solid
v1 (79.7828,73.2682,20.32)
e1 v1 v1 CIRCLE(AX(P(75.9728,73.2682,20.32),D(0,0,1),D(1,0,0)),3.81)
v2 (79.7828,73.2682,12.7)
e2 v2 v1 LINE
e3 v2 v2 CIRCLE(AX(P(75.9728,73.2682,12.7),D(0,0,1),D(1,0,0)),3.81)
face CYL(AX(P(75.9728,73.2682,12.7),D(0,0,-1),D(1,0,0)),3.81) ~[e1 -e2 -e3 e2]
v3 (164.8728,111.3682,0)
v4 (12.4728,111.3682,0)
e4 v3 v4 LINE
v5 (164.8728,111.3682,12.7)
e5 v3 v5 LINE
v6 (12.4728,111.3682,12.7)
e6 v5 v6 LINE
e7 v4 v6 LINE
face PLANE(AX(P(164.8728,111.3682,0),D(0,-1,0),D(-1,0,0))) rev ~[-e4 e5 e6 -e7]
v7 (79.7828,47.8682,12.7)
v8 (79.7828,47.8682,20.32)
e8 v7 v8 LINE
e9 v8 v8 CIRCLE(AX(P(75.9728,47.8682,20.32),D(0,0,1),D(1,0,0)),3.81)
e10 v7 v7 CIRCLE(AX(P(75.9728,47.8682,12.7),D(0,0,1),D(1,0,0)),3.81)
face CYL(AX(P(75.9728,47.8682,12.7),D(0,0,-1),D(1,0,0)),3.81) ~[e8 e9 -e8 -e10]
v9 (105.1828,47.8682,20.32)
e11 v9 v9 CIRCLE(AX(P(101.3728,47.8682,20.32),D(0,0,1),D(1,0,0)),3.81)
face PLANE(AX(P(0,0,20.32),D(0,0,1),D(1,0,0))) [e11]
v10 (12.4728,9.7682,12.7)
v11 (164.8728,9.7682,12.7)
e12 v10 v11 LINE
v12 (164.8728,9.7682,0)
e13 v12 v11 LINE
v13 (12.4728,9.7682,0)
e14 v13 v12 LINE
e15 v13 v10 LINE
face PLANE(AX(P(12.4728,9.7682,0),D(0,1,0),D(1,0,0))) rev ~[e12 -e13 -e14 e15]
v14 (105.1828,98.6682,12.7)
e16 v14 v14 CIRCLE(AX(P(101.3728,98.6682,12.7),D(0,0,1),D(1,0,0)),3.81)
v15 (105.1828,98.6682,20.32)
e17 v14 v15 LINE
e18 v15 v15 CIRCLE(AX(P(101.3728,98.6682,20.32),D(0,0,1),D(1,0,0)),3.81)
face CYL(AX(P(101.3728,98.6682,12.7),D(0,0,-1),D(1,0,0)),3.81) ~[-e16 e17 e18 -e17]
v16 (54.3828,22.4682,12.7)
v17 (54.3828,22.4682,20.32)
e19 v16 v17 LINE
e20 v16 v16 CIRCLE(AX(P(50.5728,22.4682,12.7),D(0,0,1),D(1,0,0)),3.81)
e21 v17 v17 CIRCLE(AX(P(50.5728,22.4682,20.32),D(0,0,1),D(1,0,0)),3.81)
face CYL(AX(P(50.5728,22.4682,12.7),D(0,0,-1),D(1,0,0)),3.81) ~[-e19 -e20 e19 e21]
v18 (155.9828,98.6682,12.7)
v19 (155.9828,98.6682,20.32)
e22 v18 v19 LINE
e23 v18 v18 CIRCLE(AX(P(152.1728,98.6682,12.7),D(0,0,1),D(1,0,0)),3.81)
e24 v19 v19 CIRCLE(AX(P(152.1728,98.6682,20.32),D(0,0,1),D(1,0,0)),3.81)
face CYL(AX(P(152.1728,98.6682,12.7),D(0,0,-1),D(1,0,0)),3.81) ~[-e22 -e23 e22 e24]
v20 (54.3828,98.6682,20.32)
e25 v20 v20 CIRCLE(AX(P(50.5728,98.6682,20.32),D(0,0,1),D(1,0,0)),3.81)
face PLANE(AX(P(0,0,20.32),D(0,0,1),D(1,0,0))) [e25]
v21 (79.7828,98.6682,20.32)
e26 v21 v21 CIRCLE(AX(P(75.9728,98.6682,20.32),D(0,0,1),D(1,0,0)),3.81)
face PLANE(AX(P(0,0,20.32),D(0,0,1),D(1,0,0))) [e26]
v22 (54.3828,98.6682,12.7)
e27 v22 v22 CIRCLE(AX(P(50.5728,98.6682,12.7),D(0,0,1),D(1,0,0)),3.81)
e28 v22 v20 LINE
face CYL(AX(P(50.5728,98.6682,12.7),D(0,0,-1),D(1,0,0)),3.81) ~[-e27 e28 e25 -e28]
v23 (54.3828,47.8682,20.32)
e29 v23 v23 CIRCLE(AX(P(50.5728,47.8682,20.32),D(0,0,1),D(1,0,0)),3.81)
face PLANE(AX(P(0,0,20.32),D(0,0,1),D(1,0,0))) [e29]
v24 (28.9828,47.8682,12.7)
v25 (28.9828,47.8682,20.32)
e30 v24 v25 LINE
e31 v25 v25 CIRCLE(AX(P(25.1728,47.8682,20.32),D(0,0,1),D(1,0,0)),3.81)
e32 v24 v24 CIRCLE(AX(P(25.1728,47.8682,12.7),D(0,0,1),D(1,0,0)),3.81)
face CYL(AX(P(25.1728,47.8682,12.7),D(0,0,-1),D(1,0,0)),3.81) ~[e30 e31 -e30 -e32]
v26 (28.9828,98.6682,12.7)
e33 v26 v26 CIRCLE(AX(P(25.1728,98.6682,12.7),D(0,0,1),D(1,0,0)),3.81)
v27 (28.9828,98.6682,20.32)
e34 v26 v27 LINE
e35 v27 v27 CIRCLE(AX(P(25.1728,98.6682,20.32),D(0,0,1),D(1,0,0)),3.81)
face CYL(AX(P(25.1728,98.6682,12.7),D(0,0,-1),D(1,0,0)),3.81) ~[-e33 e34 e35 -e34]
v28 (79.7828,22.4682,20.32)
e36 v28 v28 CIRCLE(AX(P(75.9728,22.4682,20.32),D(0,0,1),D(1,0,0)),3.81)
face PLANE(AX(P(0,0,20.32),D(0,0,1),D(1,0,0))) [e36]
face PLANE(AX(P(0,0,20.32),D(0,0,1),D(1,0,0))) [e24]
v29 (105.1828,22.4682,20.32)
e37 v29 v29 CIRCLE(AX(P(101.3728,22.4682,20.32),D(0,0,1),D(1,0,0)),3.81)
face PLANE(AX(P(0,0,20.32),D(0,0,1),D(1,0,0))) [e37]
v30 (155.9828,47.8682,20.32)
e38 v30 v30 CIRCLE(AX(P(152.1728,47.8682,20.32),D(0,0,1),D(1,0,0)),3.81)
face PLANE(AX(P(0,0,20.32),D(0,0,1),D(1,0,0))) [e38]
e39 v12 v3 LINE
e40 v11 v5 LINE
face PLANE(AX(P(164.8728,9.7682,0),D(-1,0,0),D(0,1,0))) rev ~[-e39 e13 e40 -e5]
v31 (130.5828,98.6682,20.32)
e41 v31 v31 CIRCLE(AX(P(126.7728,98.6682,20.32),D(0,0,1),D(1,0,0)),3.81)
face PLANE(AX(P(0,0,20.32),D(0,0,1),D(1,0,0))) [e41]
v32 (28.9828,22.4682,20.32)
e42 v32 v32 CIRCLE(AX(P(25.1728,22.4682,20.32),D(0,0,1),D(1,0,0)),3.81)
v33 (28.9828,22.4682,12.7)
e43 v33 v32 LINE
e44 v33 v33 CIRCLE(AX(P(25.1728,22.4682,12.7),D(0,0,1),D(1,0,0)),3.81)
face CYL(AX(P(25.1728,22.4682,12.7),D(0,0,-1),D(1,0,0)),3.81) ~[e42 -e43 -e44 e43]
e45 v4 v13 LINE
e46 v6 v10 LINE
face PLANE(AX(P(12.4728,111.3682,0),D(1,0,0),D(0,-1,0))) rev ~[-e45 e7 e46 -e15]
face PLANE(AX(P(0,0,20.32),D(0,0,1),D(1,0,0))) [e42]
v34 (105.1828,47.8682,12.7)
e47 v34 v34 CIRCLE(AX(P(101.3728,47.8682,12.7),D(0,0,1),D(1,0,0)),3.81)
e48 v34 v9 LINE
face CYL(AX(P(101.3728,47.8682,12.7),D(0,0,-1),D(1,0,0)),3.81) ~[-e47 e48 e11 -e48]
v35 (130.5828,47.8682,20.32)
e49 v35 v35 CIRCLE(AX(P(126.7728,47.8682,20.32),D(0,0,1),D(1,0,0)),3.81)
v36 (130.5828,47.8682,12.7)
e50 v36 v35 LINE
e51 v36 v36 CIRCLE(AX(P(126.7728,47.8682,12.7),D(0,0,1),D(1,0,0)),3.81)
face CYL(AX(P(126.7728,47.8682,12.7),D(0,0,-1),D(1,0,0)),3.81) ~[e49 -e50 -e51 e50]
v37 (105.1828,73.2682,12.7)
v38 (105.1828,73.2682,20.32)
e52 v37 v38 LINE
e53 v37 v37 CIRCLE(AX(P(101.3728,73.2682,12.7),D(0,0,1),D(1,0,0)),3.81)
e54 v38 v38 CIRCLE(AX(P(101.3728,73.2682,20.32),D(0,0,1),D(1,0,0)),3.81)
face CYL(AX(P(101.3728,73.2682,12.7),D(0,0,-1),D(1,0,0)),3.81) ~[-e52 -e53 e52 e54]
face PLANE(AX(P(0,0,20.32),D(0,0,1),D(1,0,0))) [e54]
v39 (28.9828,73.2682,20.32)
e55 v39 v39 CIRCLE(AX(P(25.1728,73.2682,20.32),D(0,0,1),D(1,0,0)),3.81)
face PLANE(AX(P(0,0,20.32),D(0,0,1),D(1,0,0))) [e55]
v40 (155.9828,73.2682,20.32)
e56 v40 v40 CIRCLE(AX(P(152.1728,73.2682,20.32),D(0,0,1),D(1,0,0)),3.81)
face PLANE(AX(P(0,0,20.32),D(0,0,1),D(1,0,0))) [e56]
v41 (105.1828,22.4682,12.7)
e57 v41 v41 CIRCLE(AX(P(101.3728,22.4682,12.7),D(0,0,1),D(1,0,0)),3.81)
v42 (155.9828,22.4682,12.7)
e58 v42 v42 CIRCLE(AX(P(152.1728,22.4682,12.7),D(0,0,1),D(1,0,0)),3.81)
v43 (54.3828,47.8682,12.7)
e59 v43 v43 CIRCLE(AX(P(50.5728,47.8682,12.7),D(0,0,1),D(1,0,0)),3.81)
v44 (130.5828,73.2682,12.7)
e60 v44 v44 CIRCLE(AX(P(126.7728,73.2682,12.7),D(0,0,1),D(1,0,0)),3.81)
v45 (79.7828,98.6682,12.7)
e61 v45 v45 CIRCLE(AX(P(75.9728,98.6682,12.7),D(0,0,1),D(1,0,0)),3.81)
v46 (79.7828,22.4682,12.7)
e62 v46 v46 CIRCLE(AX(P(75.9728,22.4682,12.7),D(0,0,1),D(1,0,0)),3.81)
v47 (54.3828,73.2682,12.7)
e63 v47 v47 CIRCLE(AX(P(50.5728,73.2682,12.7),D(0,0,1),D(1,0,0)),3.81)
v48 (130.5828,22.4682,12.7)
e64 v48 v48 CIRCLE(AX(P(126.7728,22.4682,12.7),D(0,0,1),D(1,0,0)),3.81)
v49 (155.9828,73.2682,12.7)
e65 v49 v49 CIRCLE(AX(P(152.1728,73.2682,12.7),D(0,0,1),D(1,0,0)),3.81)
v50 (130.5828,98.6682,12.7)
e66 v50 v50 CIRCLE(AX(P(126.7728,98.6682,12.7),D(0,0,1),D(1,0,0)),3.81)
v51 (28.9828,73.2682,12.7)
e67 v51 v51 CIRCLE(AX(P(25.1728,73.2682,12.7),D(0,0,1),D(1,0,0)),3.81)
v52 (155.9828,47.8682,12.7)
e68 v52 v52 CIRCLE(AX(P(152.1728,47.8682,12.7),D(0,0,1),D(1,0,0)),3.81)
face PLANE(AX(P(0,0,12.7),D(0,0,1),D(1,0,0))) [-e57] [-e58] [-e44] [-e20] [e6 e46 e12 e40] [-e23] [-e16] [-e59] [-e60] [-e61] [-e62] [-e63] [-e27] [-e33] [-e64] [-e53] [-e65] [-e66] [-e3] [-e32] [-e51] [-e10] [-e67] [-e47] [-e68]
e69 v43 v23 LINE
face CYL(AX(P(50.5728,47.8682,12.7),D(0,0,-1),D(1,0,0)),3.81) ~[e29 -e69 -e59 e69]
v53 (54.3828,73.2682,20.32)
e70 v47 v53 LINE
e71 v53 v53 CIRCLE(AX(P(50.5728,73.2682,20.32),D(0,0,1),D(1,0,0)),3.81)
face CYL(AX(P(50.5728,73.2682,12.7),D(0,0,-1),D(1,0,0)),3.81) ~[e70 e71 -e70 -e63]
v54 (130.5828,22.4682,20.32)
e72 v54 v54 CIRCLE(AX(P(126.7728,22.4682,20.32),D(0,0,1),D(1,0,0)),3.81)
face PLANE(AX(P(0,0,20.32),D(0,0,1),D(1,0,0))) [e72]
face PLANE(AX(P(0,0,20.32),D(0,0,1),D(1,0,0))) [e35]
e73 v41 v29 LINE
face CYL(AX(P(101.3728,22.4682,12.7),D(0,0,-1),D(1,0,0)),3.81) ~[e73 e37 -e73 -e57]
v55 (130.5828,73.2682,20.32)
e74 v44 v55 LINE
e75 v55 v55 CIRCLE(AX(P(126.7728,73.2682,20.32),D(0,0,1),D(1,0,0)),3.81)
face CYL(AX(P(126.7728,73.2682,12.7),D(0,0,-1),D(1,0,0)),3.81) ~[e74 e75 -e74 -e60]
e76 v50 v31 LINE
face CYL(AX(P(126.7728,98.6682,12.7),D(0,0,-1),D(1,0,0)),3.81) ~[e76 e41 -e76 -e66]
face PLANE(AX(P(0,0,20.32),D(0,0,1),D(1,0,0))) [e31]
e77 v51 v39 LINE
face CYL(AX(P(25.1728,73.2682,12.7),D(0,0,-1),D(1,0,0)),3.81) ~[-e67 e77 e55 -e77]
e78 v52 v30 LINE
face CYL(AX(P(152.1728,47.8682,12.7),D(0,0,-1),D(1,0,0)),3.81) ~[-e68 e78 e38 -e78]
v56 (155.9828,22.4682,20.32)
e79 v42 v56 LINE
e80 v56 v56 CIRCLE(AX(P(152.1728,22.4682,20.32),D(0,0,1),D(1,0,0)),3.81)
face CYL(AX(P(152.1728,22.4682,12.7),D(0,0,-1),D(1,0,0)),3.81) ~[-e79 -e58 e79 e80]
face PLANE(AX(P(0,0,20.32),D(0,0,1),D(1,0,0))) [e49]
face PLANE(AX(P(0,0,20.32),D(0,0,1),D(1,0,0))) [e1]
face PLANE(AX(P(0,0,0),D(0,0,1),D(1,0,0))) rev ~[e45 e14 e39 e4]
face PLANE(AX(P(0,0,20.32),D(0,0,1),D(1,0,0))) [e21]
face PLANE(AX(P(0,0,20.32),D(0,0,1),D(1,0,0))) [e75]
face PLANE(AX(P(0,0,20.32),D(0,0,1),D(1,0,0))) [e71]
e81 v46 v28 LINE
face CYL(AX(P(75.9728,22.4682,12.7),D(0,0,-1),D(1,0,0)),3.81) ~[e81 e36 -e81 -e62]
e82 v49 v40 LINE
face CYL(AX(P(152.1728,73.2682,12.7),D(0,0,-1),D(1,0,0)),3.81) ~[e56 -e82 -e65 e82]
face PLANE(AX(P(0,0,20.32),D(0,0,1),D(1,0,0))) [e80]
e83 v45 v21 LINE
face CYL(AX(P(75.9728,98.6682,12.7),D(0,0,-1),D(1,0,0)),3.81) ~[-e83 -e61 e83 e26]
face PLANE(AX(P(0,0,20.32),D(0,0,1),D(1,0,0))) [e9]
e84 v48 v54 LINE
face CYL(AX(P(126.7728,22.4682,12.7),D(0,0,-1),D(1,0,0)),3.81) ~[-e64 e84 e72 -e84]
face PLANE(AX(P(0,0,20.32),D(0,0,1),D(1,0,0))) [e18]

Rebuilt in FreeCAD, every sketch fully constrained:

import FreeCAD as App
import Part
import Sketcher
Q = App.Units.Quantity

doc = App.newDocument("Part")
body = doc.addObject("PartDesign::Body", "Body")

# Sketch on XY plane
sketch1 = doc.addObject("Sketcher::SketchObject", "Sketch")
body.addObject(sketch1)
sketch1.AttachmentSupport = (doc.XY_Plane, [""])
sketch1.MapMode = "FlatFace"
sketch1.addGeometry([
    Part.LineSegment(App.Vector(12, 111, 0), App.Vector(12, 10, 0)),
    Part.LineSegment(App.Vector(12, 10, 0), App.Vector(165, 10, 0)),
    Part.LineSegment(App.Vector(165, 10, 0), App.Vector(165, 111, 0)),
    Part.LineSegment(App.Vector(165, 111, 0), App.Vector(12, 111, 0)),
], False)
sketch1.addConstraint([
    Sketcher.Constraint("Coincident", 0, 2, 1, 1),
    Sketcher.Constraint("Coincident", 1, 2, 2, 1),
    Sketcher.Constraint("Coincident", 2, 2, 3, 1),
    Sketcher.Constraint("Coincident", 3, 2, 0, 1),
    Sketcher.Constraint("Vertical", 0),
    Sketcher.Constraint("Horizontal", 1),
    Sketcher.Constraint("Vertical", 2),
    Sketcher.Constraint("Horizontal", 3),
    Sketcher.Constraint("DistanceX", 1, 1, 1, 2, Q("6 in")),
    Sketcher.Constraint("DistanceY", 0, 2, 0, 1, Q("4 in")),
    Sketcher.Constraint("DistanceX", -1, 1, 0, 2, Q("12.4728 mm")),
    Sketcher.Constraint("DistanceY", -1, 1, 0, 2, Q("9.7682 mm")),
])
pad1 = doc.addObject("PartDesign::Pad", "Pad")
body.addObject(pad1)
pad1.Profile = sketch1
pad1.Length = Q("0.5 in")

# Sketch on XY plane
sketch2 = doc.addObject("Sketcher::SketchObject", "Sketch001")
body.addObject(sketch2)
sketch2.AttachmentSupport = (doc.XY_Plane, [""])
sketch2.MapMode = "FlatFace"
sketch2.AttachmentOffset = App.Placement(App.Vector(0, 0, 0.5 * 25.4), App.Rotation())
sketch2.addGeometry([
    Part.Circle(App.Vector(25.2, 22.5, 0), App.Vector(0, 0, 1), 3.8),  # 0
    Part.Circle(App.Vector(25.2, 47.9, 0), App.Vector(0, 0, 1), 3.8),  # 1
    Part.Circle(App.Vector(25.2, 73.3, 0), App.Vector(0, 0, 1), 3.8),  # 2
    Part.Circle(App.Vector(25.2, 98.7, 0), App.Vector(0, 0, 1), 3.8),  # 3
    Part.Circle(App.Vector(50.6, 22.5, 0), App.Vector(0, 0, 1), 3.8),  # 4
    Part.Circle(App.Vector(50.6, 47.9, 0), App.Vector(0, 0, 1), 3.8),  # 5
    Part.Circle(App.Vector(50.6, 73.3, 0), App.Vector(0, 0, 1), 3.8),  # 6
    Part.Circle(App.Vector(50.6, 98.7, 0), App.Vector(0, 0, 1), 3.8),  # 7
    Part.Circle(App.Vector(76, 22.5, 0), App.Vector(0, 0, 1), 3.8),  # 8
    Part.Circle(App.Vector(76, 47.9, 0), App.Vector(0, 0, 1), 3.8),  # 9
    Part.Circle(App.Vector(76, 73.3, 0), App.Vector(0, 0, 1), 3.8),  # 10
    Part.Circle(App.Vector(76, 98.7, 0), App.Vector(0, 0, 1), 3.8),  # 11
    Part.Circle(App.Vector(101.4, 22.5, 0), App.Vector(0, 0, 1), 3.8),  # 12
    Part.Circle(App.Vector(101.4, 47.9, 0), App.Vector(0, 0, 1), 3.8),  # 13
    Part.Circle(App.Vector(101.4, 73.3, 0), App.Vector(0, 0, 1), 3.8),  # 14
    Part.Circle(App.Vector(101.4, 98.7, 0), App.Vector(0, 0, 1), 3.8),  # 15
    Part.Circle(App.Vector(126.8, 22.5, 0), App.Vector(0, 0, 1), 3.8),  # 16
    Part.Circle(App.Vector(126.8, 47.9, 0), App.Vector(0, 0, 1), 3.8),  # 17
    Part.Circle(App.Vector(126.8, 73.3, 0), App.Vector(0, 0, 1), 3.8),  # 18
    Part.Circle(App.Vector(126.8, 98.7, 0), App.Vector(0, 0, 1), 3.8),  # 19
    Part.Circle(App.Vector(152.2, 22.5, 0), App.Vector(0, 0, 1), 3.8),  # 20
    Part.Circle(App.Vector(152.2, 47.9, 0), App.Vector(0, 0, 1), 3.8),  # 21
    Part.Circle(App.Vector(152.2, 73.3, 0), App.Vector(0, 0, 1), 3.8),  # 22
    Part.Circle(App.Vector(152.2, 98.7, 0), App.Vector(0, 0, 1), 3.8),  # 23
], False)
sketch2.addConstraint([
    Sketcher.Constraint("Equal", 0, 1),
    Sketcher.Constraint("Equal", 1, 2),
    Sketcher.Constraint("Equal", 2, 3),
    Sketcher.Constraint("Equal", 3, 4),
    Sketcher.Constraint("Equal", 4, 5),
    Sketcher.Constraint("Equal", 5, 6),
    Sketcher.Constraint("Equal", 6, 7),
    Sketcher.Constraint("Equal", 7, 8),
    Sketcher.Constraint("Equal", 8, 9),
    Sketcher.Constraint("Equal", 9, 10),
    Sketcher.Constraint("Equal", 10, 11),
    Sketcher.Constraint("Equal", 11, 12),
    Sketcher.Constraint("Equal", 12, 13),
    Sketcher.Constraint("Equal", 13, 14),
    Sketcher.Constraint("Equal", 14, 15),
    Sketcher.Constraint("Equal", 15, 16),
    Sketcher.Constraint("Equal", 16, 17),
    Sketcher.Constraint("Equal", 17, 18),
    Sketcher.Constraint("Equal", 18, 19),
    Sketcher.Constraint("Equal", 19, 20),
    Sketcher.Constraint("Equal", 20, 21),
    Sketcher.Constraint("Equal", 21, 22),
    Sketcher.Constraint("Equal", 22, 23),
    Sketcher.Constraint("Horizontal", 0, 3, 4, 3),
    Sketcher.Constraint("Horizontal", 1, 3, 5, 3),
    Sketcher.Constraint("Horizontal", 2, 3, 6, 3),
    Sketcher.Constraint("Horizontal", 3, 3, 7, 3),
    Sketcher.Constraint("Horizontal", 4, 3, 8, 3),
    Sketcher.Constraint("Horizontal", 5, 3, 9, 3),
    Sketcher.Constraint("Horizontal", 6, 3, 10, 3),
    Sketcher.Constraint("Horizontal", 7, 3, 11, 3),
    Sketcher.Constraint("Horizontal", 8, 3, 12, 3),
    Sketcher.Constraint("Horizontal", 9, 3, 13, 3),
    Sketcher.Constraint("Horizontal", 10, 3, 14, 3),
    Sketcher.Constraint("Horizontal", 11, 3, 15, 3),
    Sketcher.Constraint("Horizontal", 12, 3, 16, 3),
    Sketcher.Constraint("Horizontal", 13, 3, 17, 3),
    Sketcher.Constraint("Horizontal", 14, 3, 18, 3),
    Sketcher.Constraint("Horizontal", 15, 3, 19, 3),
    Sketcher.Constraint("Horizontal", 16, 3, 20, 3),
    Sketcher.Constraint("Horizontal", 17, 3, 21, 3),
    Sketcher.Constraint("Horizontal", 18, 3, 22, 3),
    Sketcher.Constraint("Horizontal", 19, 3, 23, 3),
    Sketcher.Constraint("Vertical", 0, 3, 1, 3),
    Sketcher.Constraint("Vertical", 1, 3, 2, 3),
    Sketcher.Constraint("Vertical", 2, 3, 3, 3),
    Sketcher.Constraint("Vertical", 4, 3, 5, 3),
    Sketcher.Constraint("Vertical", 5, 3, 6, 3),
    Sketcher.Constraint("Vertical", 6, 3, 7, 3),
    Sketcher.Constraint("Vertical", 8, 3, 9, 3),
    Sketcher.Constraint("Vertical", 9, 3, 10, 3),
    Sketcher.Constraint("Vertical", 10, 3, 11, 3),
    Sketcher.Constraint("Vertical", 12, 3, 13, 3),
    Sketcher.Constraint("Vertical", 13, 3, 14, 3),
    Sketcher.Constraint("Vertical", 14, 3, 15, 3),
    Sketcher.Constraint("Vertical", 16, 3, 17, 3),
    Sketcher.Constraint("Vertical", 17, 3, 18, 3),
    Sketcher.Constraint("Vertical", 18, 3, 19, 3),
    Sketcher.Constraint("Vertical", 20, 3, 21, 3),
    Sketcher.Constraint("Vertical", 21, 3, 22, 3),
    Sketcher.Constraint("Vertical", 22, 3, 23, 3),
    Sketcher.Constraint("Diameter", 0, Q("0.3 in")),
    Sketcher.Constraint("DistanceY", 0, 3, 1, 3, Q("1 in")),
    Sketcher.Constraint("DistanceY", 1, 3, 2, 3, Q("1 in")),
    Sketcher.Constraint("DistanceY", 2, 3, 3, 3, Q("1 in")),
    Sketcher.Constraint("DistanceX", 0, 3, 4, 3, Q("1 in")),
    Sketcher.Constraint("DistanceX", 4, 3, 8, 3, Q("1 in")),
    Sketcher.Constraint("DistanceX", 8, 3, 12, 3, Q("1 in")),
    Sketcher.Constraint("DistanceX", 12, 3, 16, 3, Q("1 in")),
    Sketcher.Constraint("DistanceX", 16, 3, 20, 3, Q("1 in")),
    Sketcher.Constraint("DistanceX", -1, 1, 0, 3, Q("25.1728 mm")),
    Sketcher.Constraint("DistanceY", -1, 1, 0, 3, Q("22.4682 mm")),
])
pad2 = doc.addObject("PartDesign::Pad", "Pad001")
body.addObject(pad2)
pad2.Profile = sketch2
pad2.Length = Q("0.3 in")

doc.recompute()
